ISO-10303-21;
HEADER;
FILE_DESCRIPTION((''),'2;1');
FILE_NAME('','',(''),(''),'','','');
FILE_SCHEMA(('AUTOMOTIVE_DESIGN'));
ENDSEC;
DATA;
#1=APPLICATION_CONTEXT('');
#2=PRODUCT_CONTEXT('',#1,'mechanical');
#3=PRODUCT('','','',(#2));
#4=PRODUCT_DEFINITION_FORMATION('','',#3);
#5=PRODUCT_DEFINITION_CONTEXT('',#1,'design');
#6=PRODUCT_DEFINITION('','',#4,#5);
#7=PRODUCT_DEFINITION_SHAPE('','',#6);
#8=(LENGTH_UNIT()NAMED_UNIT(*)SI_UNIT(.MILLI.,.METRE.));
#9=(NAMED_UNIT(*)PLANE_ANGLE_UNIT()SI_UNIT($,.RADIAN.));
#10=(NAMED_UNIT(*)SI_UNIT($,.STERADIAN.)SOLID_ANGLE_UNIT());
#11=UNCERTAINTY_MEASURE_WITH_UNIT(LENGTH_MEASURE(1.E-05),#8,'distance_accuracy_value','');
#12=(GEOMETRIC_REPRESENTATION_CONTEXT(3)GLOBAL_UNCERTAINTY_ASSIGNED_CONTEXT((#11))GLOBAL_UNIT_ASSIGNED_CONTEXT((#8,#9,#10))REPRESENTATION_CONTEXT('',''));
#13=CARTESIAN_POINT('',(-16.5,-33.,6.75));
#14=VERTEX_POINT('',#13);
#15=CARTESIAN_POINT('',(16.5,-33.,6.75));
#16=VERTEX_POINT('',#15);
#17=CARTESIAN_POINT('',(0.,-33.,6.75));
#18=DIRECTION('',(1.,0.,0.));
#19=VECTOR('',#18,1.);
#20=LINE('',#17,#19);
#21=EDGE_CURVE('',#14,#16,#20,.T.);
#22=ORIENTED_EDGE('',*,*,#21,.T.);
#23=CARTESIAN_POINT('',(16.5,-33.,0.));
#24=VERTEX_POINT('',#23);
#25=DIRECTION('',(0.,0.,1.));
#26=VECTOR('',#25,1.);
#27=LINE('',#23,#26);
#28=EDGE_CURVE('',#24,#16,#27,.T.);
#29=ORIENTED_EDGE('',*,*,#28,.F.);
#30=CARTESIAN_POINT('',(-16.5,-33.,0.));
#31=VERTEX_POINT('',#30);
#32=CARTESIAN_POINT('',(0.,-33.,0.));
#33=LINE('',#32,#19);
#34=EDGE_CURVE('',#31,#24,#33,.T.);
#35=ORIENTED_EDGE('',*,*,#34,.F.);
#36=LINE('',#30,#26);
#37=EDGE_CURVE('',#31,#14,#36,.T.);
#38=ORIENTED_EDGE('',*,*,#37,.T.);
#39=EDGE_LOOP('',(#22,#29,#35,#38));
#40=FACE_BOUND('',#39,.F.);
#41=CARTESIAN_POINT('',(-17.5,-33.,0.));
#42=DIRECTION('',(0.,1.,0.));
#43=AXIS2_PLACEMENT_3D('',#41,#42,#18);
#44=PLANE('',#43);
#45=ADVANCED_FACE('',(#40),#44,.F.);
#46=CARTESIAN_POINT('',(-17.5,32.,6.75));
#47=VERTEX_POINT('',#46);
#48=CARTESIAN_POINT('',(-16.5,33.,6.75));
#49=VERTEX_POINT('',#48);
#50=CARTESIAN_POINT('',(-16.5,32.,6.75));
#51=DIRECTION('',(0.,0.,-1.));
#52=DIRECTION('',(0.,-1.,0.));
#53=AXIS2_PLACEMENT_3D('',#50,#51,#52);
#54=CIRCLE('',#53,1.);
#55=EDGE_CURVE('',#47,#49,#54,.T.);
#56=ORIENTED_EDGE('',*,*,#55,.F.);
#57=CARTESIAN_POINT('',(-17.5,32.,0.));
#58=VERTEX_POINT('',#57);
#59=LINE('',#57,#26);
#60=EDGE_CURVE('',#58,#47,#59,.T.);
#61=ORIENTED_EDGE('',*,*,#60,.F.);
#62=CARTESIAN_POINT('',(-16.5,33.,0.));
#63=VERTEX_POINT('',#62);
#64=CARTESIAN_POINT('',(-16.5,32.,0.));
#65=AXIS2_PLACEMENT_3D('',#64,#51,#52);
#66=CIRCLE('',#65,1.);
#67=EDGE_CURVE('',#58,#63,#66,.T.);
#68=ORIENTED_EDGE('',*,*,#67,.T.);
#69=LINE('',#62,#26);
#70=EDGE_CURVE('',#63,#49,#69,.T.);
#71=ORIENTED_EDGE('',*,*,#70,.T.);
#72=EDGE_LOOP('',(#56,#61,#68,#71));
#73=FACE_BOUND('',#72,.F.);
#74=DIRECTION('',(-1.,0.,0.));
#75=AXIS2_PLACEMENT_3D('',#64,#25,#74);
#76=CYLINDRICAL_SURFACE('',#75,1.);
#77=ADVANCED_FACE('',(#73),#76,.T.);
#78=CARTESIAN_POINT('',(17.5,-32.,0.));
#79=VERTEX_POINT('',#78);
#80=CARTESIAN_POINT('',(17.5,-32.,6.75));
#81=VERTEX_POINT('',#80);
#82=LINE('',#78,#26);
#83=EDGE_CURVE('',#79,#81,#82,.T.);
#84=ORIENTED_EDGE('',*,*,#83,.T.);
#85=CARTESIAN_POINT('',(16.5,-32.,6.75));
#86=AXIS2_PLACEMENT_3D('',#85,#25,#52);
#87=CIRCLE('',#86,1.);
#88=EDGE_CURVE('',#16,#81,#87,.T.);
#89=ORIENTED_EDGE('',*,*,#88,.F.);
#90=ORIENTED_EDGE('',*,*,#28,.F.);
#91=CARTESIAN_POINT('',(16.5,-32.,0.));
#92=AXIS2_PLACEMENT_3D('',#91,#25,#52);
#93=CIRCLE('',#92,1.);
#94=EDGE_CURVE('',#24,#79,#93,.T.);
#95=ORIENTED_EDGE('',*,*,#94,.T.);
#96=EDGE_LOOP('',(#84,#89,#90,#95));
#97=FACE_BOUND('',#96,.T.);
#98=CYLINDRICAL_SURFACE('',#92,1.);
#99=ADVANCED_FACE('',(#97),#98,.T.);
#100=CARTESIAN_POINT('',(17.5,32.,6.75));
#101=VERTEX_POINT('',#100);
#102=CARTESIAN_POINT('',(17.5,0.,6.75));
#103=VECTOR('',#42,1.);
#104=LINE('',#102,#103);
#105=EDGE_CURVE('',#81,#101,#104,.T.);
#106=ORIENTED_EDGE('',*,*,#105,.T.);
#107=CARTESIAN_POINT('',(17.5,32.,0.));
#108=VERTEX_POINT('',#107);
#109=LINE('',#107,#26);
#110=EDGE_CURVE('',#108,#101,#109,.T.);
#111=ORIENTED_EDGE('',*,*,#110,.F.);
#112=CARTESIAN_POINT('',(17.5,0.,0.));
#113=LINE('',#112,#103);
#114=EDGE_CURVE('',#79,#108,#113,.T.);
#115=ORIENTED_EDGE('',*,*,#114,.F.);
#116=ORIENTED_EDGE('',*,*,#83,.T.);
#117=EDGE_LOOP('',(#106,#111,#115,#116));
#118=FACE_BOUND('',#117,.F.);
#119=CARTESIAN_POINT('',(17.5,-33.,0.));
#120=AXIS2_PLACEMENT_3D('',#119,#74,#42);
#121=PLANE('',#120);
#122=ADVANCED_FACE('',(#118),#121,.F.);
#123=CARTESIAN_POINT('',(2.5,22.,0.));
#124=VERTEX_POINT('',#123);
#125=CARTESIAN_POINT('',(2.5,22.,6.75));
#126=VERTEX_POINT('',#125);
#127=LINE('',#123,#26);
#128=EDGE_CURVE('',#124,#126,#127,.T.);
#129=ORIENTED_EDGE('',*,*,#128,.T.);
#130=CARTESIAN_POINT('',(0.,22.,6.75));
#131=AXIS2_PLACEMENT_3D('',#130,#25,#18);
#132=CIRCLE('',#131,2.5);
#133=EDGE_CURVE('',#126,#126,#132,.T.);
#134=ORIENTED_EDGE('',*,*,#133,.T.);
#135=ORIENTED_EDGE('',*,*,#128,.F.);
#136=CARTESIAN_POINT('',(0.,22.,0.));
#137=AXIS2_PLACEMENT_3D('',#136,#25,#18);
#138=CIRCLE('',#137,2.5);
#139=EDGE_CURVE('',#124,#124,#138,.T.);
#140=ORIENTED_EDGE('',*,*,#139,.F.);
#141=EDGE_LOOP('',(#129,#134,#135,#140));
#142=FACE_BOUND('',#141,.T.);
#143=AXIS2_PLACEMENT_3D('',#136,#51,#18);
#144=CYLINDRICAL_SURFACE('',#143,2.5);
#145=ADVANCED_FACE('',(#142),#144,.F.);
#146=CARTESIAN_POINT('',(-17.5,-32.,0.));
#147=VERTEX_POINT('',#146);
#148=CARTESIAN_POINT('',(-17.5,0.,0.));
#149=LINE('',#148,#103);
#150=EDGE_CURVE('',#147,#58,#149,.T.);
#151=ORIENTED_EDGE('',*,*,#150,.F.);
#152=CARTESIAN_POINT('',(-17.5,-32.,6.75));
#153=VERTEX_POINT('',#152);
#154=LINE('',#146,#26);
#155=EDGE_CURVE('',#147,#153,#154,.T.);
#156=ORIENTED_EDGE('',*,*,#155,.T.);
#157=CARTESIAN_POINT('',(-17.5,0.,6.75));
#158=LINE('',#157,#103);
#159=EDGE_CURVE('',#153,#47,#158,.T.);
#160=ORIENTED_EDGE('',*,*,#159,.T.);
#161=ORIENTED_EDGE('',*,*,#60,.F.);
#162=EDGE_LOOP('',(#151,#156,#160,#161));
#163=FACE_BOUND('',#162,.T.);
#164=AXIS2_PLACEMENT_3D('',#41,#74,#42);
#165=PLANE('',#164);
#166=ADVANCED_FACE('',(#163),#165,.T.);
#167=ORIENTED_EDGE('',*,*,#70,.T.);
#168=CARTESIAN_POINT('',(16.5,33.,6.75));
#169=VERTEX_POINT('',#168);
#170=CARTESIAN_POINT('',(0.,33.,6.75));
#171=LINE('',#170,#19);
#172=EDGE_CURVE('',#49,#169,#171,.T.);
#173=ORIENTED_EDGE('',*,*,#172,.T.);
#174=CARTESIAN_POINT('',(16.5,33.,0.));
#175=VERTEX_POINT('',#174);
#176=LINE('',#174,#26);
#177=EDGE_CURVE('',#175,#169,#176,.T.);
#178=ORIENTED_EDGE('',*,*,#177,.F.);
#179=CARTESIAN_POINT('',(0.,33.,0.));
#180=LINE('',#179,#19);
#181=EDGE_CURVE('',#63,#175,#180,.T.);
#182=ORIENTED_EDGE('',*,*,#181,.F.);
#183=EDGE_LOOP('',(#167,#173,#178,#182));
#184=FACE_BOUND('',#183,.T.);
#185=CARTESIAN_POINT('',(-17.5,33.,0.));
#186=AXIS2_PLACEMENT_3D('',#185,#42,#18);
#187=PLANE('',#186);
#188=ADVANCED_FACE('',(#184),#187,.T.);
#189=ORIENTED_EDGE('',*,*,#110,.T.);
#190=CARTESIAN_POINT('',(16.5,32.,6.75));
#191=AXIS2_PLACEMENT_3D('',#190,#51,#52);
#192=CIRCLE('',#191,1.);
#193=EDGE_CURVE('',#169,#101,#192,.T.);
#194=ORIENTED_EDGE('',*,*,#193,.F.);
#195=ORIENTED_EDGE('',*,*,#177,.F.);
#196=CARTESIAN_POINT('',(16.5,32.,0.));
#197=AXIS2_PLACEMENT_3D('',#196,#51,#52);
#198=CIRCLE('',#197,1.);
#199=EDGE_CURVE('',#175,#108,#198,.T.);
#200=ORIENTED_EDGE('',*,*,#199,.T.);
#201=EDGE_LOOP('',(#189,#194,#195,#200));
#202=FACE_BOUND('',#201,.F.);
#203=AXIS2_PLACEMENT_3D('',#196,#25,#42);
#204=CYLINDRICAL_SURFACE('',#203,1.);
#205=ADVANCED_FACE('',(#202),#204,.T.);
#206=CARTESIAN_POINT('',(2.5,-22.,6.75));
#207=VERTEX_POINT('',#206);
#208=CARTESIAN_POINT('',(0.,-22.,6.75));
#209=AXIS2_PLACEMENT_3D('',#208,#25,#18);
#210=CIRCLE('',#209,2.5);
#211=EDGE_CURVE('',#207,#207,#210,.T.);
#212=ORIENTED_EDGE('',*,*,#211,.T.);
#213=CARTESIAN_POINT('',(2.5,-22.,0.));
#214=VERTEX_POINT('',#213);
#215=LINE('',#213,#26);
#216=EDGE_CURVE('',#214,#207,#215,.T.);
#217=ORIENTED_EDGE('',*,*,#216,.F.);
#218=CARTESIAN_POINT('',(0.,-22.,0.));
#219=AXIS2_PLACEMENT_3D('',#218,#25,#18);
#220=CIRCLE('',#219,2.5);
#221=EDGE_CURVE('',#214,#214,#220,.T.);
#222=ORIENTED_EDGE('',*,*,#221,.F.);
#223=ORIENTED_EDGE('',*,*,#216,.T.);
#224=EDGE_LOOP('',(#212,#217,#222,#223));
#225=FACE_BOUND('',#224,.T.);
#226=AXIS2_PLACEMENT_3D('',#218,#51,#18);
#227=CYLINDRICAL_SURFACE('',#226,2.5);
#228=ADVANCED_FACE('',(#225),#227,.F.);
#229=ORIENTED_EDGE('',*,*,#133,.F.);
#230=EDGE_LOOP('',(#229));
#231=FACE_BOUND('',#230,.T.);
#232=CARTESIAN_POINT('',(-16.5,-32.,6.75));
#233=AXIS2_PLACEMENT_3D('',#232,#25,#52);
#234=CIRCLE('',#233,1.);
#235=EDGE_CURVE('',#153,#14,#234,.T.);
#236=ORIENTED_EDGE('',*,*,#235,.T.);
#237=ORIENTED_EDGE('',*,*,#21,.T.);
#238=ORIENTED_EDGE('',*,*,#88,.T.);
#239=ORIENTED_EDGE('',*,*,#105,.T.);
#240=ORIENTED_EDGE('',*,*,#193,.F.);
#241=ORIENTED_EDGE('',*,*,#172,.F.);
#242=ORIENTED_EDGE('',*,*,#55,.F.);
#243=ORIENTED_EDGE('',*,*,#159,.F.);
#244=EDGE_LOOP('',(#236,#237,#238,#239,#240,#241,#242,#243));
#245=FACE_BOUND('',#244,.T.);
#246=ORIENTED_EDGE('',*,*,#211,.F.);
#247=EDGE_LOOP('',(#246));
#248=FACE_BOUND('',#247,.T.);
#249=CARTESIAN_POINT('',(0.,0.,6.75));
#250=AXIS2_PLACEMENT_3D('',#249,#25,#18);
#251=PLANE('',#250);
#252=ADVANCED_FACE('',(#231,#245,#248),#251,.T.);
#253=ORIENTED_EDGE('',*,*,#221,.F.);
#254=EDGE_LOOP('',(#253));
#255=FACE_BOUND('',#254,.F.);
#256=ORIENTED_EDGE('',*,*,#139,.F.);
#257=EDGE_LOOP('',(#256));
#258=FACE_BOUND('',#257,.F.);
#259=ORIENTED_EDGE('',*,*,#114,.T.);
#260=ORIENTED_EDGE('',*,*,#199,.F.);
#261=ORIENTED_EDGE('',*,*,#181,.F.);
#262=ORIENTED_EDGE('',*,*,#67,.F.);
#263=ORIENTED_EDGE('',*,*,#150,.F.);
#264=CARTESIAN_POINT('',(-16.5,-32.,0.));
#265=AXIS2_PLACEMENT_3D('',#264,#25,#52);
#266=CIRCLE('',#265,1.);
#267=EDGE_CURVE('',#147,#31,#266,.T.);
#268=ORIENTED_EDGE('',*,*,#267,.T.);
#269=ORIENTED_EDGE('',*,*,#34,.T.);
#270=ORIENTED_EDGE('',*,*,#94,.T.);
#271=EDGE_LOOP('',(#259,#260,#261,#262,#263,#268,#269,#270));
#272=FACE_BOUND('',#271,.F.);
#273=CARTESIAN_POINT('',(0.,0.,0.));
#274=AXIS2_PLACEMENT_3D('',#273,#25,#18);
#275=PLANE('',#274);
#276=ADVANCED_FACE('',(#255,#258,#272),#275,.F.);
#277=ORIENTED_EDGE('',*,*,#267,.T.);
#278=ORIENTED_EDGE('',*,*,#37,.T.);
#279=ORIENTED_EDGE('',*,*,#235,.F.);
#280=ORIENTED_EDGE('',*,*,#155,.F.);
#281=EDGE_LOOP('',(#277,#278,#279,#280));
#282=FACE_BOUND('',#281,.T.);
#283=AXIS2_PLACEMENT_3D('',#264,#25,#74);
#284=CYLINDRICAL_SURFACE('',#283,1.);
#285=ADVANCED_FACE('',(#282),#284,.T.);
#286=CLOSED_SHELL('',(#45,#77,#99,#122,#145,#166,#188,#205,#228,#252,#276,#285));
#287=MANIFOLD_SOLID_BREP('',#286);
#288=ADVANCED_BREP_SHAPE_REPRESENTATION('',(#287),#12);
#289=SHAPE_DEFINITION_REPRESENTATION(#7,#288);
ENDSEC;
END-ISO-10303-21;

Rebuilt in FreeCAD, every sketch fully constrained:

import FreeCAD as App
import Part
import Sketcher

V = App.Vector
Q = App.Units.Quantity


def edges_at(feature, points):
    """Names of the edges that pass closest to the given points."""
    edges = feature.Shape.Edges
    near = lambda p: min(range(len(edges)), key=lambda i: edges[i].distToShape(Part.Vertex(*p))[0])
    return sorted({f"Edge{near(p) + 1}" for p in points})

doc = App.newDocument("Part")
body = doc.addObject("PartDesign::Body", "Body")

# Sketch on XY plane
sketch1 = body.newObject("Sketcher::SketchObject", "Sketch")
sketch1.AttachmentSupport = (doc.getObject("XY_Plane"), [""])
sketch1.MapMode = "FlatFace"
sketch1.addGeometry(Part.LineSegment(V(-17.5, 33, 0), V(-17.5, -33, 0)), False)
sketch1.addGeometry(Part.LineSegment(V(-17.5, -33, 0), V(17.5, -33, 0)), False)
sketch1.addGeometry(Part.LineSegment(V(17.5, -33, 0), V(17.5, 33, 0)), False)
sketch1.addGeometry(Part.LineSegment(V(17.5, 33, 0), V(-17.5, 33, 0)), False)
sketch1.addGeometry(Part.Circle(V(0, -22, 0), V(0, 0, 1), 2.5), False)
sketch1.addGeometry(Part.Circle(V(0, 22, 0), V(0, 0, 1), 2.5), False)
sketch1.addConstraint(Sketcher.Constraint("Coincident", 0, 2, 1, 1))
sketch1.addConstraint(Sketcher.Constraint("Coincident", 1, 2, 2, 1))
sketch1.addConstraint(Sketcher.Constraint("Coincident", 2, 2, 3, 1))
sketch1.addConstraint(Sketcher.Constraint("Coincident", 3, 2, 0, 1))
sketch1.addConstraint(Sketcher.Constraint("Vertical", 0))
sketch1.addConstraint(Sketcher.Constraint("Horizontal", 1))
sketch1.addConstraint(Sketcher.Constraint("Vertical", 2))
sketch1.addConstraint(Sketcher.Constraint("Horizontal", 3))
sketch1.addConstraint(Sketcher.Constraint("Equal", 4, 5))
sketch1.addConstraint(Sketcher.Constraint("Symmetric", 4, 3, 5, 3, -1, 1))
sketch1.addConstraint(Sketcher.Constraint("Symmetric", 0, 2, 2, 2, -1, 1))
sketch1.addConstraint(Sketcher.Constraint("PointOnObject", 4, 3, -2))
sketch1.addConstraint(Sketcher.Constraint("Diameter", 4, Q("5 mm")))
sketch1.addConstraint(Sketcher.Constraint("DistanceX", 1, 1, 1, 2, Q("35 mm")))
sketch1.addConstraint(Sketcher.Constraint("DistanceY", 0, 2, 0, 1, Q("66 mm")))
sketch1.addConstraint(Sketcher.Constraint("DistanceY", 4, 3, -1, 1, Q("22 mm")))
pad1 = body.newObject("PartDesign::Pad", "Pad")
pad1.Profile = sketch1
pad1.Length = 6.75
doc.recompute()

fillet = body.newObject("PartDesign::Fillet", "Fillet")
fillet.Base = (pad1, edges_at(pad1, [
    (-17.5, 33, 3.375),
    (-17.5, -33, 3.375),
    (17.5, -33, 3.375),
    (17.5, 33, 3.375),
]))
fillet.Radius = 1

doc.recompute()
